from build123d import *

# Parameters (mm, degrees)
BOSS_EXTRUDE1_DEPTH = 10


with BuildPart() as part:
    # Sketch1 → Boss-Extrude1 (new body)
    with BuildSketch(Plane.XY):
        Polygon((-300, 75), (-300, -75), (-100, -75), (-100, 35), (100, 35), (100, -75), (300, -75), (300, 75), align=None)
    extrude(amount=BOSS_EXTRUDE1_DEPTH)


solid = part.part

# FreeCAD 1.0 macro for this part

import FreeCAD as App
import Part
import Sketcher

doc = App.newDocument("Part")
params = doc.addObject("Spreadsheet::Sheet", "Params")
for row, (alias, value) in enumerate([
    ("sketch1_width", "200 mm"),
    ("sketch1_height", "150 mm"),
    ("sketch1_height2", "110 mm"),
    ("pad1_length", "10 mm"),
], start=1):
    params.set(f"A{row}", alias)
    params.set(f"B{row}", "=" + value)
    params.setAlias(f"B{row}", alias)

body = doc.addObject("PartDesign::Body", "Body")

# Sketch on XY plane
sketch1 = body.newObject("Sketcher::SketchObject", "Sketch")
sketch1.AttachmentSupport = (doc.getObject("XY_Plane"), [""])
sketch1.MapMode = "FlatFace"
sketch1.addGeometry([
    Part.LineSegment(App.Vector(-300, 75, 0), App.Vector(-300, -75, 0)),  # 0
    Part.LineSegment(App.Vector(-300, -75, 0), App.Vector(-100, -75, 0)),  # 1
    Part.LineSegment(App.Vector(-100, -75, 0), App.Vector(-100, 35, 0)),  # 2
    Part.LineSegment(App.Vector(-100, 35, 0), App.Vector(100, 35, 0)),  # 3
    Part.LineSegment(App.Vector(100, 35, 0), App.Vector(100, -75, 0)),  # 4
    Part.LineSegment(App.Vector(100, -75, 0), App.Vector(300, -75, 0)),  # 5
    Part.LineSegment(App.Vector(300, -75, 0), App.Vector(300, 75, 0)),  # 6
    Part.LineSegment(App.Vector(300, 75, 0), App.Vector(-300, 75, 0)),  # 7
], False)
sketch1.addConstraint([
    Sketcher.Constraint("Coincident", 0, 2, 1, 1),
    Sketcher.Constraint("Coincident", 1, 2, 2, 1),
    Sketcher.Constraint("Coincident", 2, 2, 3, 1),
    Sketcher.Constraint("Coincident", 3, 2, 4, 1),
    Sketcher.Constraint("Coincident", 4, 2, 5, 1),
    Sketcher.Constraint("Coincident", 5, 2, 6, 1),
    Sketcher.Constraint("Coincident", 6, 2, 7, 1),
    Sketcher.Constraint("Coincident", 7, 2, 0, 1),
    Sketcher.Constraint("Vertical", 0),
    Sketcher.Constraint("Horizontal", 1),
    Sketcher.Constraint("Vertical", 2),
    Sketcher.Constraint("Horizontal", 3),
    Sketcher.Constraint("Vertical", 4),
    Sketcher.Constraint("Horizontal", 5),
    Sketcher.Constraint("Vertical", 6),
    Sketcher.Constraint("Horizontal", 7),
    Sketcher.Constraint("Symmetric", 0, 2, 6, 2, -1, 1),
    Sketcher.Constraint("Symmetric", 1, 2, 4, 2, -2),
    Sketcher.Constraint("Equal", 1, 3),
    Sketcher.Constraint("DistanceX", 1, 1, 1, 2, 200.0),
    Sketcher.Constraint("DistanceY", 0, 2, 0, 1, 150.0),
    Sketcher.Constraint("DistanceY", 2, 1, 2, 2, 110.0),
])
sketch1.setExpression("Constraints[19]", "Params.sketch1_width")
sketch1.setExpression("Constraints[20]", "Params.sketch1_height")
sketch1.setExpression("Constraints[21]", "Params.sketch1_height2")
pad1 = body.newObject("PartDesign::Pad", "Pad")
pad1.Profile = sketch1
pad1.setExpression("Length", "Params.pad1_length")

doc.recompute()
